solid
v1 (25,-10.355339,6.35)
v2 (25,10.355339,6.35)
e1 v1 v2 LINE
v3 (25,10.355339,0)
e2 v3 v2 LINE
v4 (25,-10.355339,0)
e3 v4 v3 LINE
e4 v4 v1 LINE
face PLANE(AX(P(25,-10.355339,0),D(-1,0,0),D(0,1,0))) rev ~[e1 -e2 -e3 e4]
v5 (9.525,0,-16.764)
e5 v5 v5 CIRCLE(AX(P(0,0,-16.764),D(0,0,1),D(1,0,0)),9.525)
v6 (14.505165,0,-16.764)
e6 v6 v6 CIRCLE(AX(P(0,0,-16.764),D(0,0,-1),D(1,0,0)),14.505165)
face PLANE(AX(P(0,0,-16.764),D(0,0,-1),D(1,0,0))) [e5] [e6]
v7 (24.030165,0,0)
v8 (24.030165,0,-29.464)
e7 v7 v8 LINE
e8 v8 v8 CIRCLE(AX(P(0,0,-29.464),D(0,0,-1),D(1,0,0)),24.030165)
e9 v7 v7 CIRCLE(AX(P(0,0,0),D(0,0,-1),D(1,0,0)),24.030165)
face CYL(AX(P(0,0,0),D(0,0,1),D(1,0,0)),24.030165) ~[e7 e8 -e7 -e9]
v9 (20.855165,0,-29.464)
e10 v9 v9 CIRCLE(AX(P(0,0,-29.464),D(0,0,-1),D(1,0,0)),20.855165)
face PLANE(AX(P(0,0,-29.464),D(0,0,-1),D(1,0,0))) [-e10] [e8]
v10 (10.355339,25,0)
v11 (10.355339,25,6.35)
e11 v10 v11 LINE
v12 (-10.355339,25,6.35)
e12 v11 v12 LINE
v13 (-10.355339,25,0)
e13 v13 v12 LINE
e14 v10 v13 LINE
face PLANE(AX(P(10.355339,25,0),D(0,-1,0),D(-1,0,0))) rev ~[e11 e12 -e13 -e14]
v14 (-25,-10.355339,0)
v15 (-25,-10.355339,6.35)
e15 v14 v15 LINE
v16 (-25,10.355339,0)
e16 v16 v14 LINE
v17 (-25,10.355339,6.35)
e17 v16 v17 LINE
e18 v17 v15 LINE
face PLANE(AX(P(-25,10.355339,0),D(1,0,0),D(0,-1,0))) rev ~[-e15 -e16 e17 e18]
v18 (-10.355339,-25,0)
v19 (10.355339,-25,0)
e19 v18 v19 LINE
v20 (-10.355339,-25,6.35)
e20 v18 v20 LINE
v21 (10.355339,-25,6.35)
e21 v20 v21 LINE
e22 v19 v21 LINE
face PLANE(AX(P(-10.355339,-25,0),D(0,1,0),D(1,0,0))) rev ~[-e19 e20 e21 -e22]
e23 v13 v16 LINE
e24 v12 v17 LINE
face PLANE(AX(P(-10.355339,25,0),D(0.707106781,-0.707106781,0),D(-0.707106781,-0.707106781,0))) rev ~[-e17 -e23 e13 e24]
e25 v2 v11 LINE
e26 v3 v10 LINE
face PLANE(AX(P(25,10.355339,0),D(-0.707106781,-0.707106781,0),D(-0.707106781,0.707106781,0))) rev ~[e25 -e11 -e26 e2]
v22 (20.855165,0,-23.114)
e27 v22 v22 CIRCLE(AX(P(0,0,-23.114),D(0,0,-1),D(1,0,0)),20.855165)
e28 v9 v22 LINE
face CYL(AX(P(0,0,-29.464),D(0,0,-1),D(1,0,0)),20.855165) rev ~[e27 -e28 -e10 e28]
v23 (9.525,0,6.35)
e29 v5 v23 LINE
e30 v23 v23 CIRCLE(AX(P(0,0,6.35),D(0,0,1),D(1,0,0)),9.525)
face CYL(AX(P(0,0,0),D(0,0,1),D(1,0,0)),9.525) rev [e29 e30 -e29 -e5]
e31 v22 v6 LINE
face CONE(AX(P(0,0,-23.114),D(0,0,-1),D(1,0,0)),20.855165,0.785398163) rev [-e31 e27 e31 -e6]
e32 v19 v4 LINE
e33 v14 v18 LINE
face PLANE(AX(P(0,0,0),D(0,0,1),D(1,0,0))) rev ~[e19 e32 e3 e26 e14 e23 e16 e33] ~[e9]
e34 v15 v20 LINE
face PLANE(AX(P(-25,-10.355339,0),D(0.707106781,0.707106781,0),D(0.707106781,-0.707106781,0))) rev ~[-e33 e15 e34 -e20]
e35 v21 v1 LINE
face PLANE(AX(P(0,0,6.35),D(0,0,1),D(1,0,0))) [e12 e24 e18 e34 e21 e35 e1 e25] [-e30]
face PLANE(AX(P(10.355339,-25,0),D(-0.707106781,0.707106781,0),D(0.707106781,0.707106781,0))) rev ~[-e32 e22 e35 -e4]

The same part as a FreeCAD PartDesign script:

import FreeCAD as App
import Part
import Sketcher

V = App.Vector
Q = App.Units.Quantity


def edges_at(feature, points):
    """Names of the edges that pass closest to the given points."""
    edges = feature.Shape.Edges
    near = lambda p: min(range(len(edges)), key=lambda i: edges[i].distToShape(Part.Vertex(*p))[0])
    return sorted({f"Edge{near(p) + 1}" for p in points})


def add_polygon(sketch, points):
    """Adds a closed chain of lines whose ends are joined by coincident constraints."""
    first, n = sketch.GeometryCount, len(points)
    for a, b in zip(points, points[1:] + points[:1]):
        sketch.addGeometry(Part.LineSegment(App.Vector(*a, 0), App.Vector(*b, 0)), False)
    for i in range(n):
        sketch.addConstraint(Sketcher.Constraint("Coincident", first + i, 2, first + (i + 1) % n, 1))

doc = App.newDocument("Part")
params = doc.addObject("Spreadsheet::Sheet", "Params")
for row, (alias, value) in enumerate([
    ("sketch1_diameter", "0.75 in"),
    ("pad1_length", "0.25 in"),
    ("sketch2_diameter", "0.75 in"),
    ("pad2_length", "1.16 in"),
    ("pocket1_length", "0.5 in"),
    ("chamfer_size", "0.25 in"),
], start=1):
    params.set(f"A{row}", alias)
    params.set(f"B{row}", "=" + value)
    params.setAlias(f"B{row}", alias)

body = doc.addObject("PartDesign::Body", "Body")

sketch1 = doc.addObject("Sketcher::SketchObject", "Sketch")
body.addObject(sketch1)
sketch1.AttachmentSupport = (doc.XY_Plane, [""])
sketch1.MapMode = "FlatFace"
add_polygon(sketch1, [(-10, -25), (10, -25), (25, -10), (25, 10), (10, 25), (-10, 25), (-25, 10), (-25, -10)])
sketch1.addGeometry(Part.Circle(V(0, 0, 0), V(0, 0, 1), 10), False)
sketch1.addConstraint(Sketcher.Constraint("Horizontal", 0))
sketch1.addConstraint(Sketcher.Constraint("Vertical", 2))
sketch1.addConstraint(Sketcher.Constraint("Horizontal", 4))
sketch1.addConstraint(Sketcher.Constraint("Vertical", 6))
sketch1.addConstraint(Sketcher.Constraint("Coincident", 8, 3, -1, 1))
sketch1.addConstraint(Sketcher.Constraint("Symmetric", 0, 2, 4, 2, -1, 1))
sketch1.addConstraint(Sketcher.Constraint("Symmetric", 1, 2, 5, 2, -1, 1))
sketch1.addConstraint(Sketcher.Constraint("Perpendicular", 1, 3))
sketch1.addConstraint(Sketcher.Constraint("Perpendicular", 5, 7))
sketch1.addConstraint(Sketcher.Constraint("Horizontal", 2, 2, 5, 2))
sketch1.addConstraint(Sketcher.Constraint("Horizontal", 1, 2, 6, 2))
sketch1.addConstraint(Sketcher.Constraint("Vertical", 0, 2, 3, 2))
sketch1.addConstraint(Sketcher.Constraint("Equal", 4, 2))
sketch1.addConstraint(Sketcher.Constraint("Diameter", 8, Q("0.75 in")))
sketch1.addConstraint(Sketcher.Constraint("DistanceX", 0, 1, 0, 2, Q("20.710678 mm")))
sketch1.addConstraint(Sketcher.Constraint("DistanceY", 0, 2, -1, 1, Q("25 mm")))
sketch1.setExpression("Constraints[21]", "Params.sketch1_diameter")
pad1 = doc.addObject("PartDesign::Pad", "Pad")
body.addObject(pad1)
pad1.Profile = sketch1
pad1.setExpression("Length", "Params.pad1_length")

sketch2 = doc.addObject("Sketcher::SketchObject", "Sketch001")
body.addObject(sketch2)
sketch2.AttachmentSupport = (doc.XY_Plane, [""])
sketch2.MapMode = "FlatFace"
sketch2.addGeometry(Part.Circle(V(0, 0, 0), V(0, 0, 1), 24), False)
sketch2.addGeometry(Part.Circle(V(0, 0, 0), V(0, 0, 1), 10), False)
sketch2.addConstraint(Sketcher.Constraint("Coincident", 0, 3, -1, 1))
sketch2.addConstraint(Sketcher.Constraint("Coincident", 1, 3, -1, 1))
sketch2.addConstraint(Sketcher.Constraint("Diameter", 1, Q("0.75 in")))
sketch2.addConstraint(Sketcher.Constraint("Diameter", 0, Q("48.06033 mm")))
sketch2.setExpression("Constraints[2]", "Params.sketch2_diameter")
pad2 = doc.addObject("PartDesign::Pad", "Pad001")
body.addObject(pad2)
pad2.Profile = sketch2
pad2.setExpression("Length", "Params.pad2_length")
pad2.Reversed = True

sketch3 = doc.addObject("Sketcher::SketchObject", "Sketch002")
body.addObject(sketch3)
sketch3.AttachmentSupport = (doc.XY_Plane, [""])
sketch3.MapMode = "FlatFace"
sketch3.AttachmentOffset = App.Placement(V(0, 0, -1.16 * 25.4), App.Rotation())
sketch3.addGeometry(Part.Circle(V(0, 0, 0), V(0, 0, 1), 21), False)
sketch3.addConstraint(Sketcher.Constraint("Coincident", 0, 3, -1, 1))
sketch3.addConstraint(Sketcher.Constraint("Diameter", 0, Q("41.71033 mm")))
pocket1 = doc.addObject("PartDesign::Pocket", "Pocket")
body.addObject(pocket1)
pocket1.Profile = sketch3
pocket1.setExpression("Length", "Params.pocket1_length")
pocket1.Reversed = True
doc.recompute()

chamfer = doc.addObject("PartDesign::Chamfer", "Chamfer")
body.addObject(chamfer)
chamfer.Base = (pocket1, edges_at(pocket1, [(-20.855, 0, -16.764)]))
chamfer.setExpression("Size", "Params.chamfer_size")

doc.recompute()
